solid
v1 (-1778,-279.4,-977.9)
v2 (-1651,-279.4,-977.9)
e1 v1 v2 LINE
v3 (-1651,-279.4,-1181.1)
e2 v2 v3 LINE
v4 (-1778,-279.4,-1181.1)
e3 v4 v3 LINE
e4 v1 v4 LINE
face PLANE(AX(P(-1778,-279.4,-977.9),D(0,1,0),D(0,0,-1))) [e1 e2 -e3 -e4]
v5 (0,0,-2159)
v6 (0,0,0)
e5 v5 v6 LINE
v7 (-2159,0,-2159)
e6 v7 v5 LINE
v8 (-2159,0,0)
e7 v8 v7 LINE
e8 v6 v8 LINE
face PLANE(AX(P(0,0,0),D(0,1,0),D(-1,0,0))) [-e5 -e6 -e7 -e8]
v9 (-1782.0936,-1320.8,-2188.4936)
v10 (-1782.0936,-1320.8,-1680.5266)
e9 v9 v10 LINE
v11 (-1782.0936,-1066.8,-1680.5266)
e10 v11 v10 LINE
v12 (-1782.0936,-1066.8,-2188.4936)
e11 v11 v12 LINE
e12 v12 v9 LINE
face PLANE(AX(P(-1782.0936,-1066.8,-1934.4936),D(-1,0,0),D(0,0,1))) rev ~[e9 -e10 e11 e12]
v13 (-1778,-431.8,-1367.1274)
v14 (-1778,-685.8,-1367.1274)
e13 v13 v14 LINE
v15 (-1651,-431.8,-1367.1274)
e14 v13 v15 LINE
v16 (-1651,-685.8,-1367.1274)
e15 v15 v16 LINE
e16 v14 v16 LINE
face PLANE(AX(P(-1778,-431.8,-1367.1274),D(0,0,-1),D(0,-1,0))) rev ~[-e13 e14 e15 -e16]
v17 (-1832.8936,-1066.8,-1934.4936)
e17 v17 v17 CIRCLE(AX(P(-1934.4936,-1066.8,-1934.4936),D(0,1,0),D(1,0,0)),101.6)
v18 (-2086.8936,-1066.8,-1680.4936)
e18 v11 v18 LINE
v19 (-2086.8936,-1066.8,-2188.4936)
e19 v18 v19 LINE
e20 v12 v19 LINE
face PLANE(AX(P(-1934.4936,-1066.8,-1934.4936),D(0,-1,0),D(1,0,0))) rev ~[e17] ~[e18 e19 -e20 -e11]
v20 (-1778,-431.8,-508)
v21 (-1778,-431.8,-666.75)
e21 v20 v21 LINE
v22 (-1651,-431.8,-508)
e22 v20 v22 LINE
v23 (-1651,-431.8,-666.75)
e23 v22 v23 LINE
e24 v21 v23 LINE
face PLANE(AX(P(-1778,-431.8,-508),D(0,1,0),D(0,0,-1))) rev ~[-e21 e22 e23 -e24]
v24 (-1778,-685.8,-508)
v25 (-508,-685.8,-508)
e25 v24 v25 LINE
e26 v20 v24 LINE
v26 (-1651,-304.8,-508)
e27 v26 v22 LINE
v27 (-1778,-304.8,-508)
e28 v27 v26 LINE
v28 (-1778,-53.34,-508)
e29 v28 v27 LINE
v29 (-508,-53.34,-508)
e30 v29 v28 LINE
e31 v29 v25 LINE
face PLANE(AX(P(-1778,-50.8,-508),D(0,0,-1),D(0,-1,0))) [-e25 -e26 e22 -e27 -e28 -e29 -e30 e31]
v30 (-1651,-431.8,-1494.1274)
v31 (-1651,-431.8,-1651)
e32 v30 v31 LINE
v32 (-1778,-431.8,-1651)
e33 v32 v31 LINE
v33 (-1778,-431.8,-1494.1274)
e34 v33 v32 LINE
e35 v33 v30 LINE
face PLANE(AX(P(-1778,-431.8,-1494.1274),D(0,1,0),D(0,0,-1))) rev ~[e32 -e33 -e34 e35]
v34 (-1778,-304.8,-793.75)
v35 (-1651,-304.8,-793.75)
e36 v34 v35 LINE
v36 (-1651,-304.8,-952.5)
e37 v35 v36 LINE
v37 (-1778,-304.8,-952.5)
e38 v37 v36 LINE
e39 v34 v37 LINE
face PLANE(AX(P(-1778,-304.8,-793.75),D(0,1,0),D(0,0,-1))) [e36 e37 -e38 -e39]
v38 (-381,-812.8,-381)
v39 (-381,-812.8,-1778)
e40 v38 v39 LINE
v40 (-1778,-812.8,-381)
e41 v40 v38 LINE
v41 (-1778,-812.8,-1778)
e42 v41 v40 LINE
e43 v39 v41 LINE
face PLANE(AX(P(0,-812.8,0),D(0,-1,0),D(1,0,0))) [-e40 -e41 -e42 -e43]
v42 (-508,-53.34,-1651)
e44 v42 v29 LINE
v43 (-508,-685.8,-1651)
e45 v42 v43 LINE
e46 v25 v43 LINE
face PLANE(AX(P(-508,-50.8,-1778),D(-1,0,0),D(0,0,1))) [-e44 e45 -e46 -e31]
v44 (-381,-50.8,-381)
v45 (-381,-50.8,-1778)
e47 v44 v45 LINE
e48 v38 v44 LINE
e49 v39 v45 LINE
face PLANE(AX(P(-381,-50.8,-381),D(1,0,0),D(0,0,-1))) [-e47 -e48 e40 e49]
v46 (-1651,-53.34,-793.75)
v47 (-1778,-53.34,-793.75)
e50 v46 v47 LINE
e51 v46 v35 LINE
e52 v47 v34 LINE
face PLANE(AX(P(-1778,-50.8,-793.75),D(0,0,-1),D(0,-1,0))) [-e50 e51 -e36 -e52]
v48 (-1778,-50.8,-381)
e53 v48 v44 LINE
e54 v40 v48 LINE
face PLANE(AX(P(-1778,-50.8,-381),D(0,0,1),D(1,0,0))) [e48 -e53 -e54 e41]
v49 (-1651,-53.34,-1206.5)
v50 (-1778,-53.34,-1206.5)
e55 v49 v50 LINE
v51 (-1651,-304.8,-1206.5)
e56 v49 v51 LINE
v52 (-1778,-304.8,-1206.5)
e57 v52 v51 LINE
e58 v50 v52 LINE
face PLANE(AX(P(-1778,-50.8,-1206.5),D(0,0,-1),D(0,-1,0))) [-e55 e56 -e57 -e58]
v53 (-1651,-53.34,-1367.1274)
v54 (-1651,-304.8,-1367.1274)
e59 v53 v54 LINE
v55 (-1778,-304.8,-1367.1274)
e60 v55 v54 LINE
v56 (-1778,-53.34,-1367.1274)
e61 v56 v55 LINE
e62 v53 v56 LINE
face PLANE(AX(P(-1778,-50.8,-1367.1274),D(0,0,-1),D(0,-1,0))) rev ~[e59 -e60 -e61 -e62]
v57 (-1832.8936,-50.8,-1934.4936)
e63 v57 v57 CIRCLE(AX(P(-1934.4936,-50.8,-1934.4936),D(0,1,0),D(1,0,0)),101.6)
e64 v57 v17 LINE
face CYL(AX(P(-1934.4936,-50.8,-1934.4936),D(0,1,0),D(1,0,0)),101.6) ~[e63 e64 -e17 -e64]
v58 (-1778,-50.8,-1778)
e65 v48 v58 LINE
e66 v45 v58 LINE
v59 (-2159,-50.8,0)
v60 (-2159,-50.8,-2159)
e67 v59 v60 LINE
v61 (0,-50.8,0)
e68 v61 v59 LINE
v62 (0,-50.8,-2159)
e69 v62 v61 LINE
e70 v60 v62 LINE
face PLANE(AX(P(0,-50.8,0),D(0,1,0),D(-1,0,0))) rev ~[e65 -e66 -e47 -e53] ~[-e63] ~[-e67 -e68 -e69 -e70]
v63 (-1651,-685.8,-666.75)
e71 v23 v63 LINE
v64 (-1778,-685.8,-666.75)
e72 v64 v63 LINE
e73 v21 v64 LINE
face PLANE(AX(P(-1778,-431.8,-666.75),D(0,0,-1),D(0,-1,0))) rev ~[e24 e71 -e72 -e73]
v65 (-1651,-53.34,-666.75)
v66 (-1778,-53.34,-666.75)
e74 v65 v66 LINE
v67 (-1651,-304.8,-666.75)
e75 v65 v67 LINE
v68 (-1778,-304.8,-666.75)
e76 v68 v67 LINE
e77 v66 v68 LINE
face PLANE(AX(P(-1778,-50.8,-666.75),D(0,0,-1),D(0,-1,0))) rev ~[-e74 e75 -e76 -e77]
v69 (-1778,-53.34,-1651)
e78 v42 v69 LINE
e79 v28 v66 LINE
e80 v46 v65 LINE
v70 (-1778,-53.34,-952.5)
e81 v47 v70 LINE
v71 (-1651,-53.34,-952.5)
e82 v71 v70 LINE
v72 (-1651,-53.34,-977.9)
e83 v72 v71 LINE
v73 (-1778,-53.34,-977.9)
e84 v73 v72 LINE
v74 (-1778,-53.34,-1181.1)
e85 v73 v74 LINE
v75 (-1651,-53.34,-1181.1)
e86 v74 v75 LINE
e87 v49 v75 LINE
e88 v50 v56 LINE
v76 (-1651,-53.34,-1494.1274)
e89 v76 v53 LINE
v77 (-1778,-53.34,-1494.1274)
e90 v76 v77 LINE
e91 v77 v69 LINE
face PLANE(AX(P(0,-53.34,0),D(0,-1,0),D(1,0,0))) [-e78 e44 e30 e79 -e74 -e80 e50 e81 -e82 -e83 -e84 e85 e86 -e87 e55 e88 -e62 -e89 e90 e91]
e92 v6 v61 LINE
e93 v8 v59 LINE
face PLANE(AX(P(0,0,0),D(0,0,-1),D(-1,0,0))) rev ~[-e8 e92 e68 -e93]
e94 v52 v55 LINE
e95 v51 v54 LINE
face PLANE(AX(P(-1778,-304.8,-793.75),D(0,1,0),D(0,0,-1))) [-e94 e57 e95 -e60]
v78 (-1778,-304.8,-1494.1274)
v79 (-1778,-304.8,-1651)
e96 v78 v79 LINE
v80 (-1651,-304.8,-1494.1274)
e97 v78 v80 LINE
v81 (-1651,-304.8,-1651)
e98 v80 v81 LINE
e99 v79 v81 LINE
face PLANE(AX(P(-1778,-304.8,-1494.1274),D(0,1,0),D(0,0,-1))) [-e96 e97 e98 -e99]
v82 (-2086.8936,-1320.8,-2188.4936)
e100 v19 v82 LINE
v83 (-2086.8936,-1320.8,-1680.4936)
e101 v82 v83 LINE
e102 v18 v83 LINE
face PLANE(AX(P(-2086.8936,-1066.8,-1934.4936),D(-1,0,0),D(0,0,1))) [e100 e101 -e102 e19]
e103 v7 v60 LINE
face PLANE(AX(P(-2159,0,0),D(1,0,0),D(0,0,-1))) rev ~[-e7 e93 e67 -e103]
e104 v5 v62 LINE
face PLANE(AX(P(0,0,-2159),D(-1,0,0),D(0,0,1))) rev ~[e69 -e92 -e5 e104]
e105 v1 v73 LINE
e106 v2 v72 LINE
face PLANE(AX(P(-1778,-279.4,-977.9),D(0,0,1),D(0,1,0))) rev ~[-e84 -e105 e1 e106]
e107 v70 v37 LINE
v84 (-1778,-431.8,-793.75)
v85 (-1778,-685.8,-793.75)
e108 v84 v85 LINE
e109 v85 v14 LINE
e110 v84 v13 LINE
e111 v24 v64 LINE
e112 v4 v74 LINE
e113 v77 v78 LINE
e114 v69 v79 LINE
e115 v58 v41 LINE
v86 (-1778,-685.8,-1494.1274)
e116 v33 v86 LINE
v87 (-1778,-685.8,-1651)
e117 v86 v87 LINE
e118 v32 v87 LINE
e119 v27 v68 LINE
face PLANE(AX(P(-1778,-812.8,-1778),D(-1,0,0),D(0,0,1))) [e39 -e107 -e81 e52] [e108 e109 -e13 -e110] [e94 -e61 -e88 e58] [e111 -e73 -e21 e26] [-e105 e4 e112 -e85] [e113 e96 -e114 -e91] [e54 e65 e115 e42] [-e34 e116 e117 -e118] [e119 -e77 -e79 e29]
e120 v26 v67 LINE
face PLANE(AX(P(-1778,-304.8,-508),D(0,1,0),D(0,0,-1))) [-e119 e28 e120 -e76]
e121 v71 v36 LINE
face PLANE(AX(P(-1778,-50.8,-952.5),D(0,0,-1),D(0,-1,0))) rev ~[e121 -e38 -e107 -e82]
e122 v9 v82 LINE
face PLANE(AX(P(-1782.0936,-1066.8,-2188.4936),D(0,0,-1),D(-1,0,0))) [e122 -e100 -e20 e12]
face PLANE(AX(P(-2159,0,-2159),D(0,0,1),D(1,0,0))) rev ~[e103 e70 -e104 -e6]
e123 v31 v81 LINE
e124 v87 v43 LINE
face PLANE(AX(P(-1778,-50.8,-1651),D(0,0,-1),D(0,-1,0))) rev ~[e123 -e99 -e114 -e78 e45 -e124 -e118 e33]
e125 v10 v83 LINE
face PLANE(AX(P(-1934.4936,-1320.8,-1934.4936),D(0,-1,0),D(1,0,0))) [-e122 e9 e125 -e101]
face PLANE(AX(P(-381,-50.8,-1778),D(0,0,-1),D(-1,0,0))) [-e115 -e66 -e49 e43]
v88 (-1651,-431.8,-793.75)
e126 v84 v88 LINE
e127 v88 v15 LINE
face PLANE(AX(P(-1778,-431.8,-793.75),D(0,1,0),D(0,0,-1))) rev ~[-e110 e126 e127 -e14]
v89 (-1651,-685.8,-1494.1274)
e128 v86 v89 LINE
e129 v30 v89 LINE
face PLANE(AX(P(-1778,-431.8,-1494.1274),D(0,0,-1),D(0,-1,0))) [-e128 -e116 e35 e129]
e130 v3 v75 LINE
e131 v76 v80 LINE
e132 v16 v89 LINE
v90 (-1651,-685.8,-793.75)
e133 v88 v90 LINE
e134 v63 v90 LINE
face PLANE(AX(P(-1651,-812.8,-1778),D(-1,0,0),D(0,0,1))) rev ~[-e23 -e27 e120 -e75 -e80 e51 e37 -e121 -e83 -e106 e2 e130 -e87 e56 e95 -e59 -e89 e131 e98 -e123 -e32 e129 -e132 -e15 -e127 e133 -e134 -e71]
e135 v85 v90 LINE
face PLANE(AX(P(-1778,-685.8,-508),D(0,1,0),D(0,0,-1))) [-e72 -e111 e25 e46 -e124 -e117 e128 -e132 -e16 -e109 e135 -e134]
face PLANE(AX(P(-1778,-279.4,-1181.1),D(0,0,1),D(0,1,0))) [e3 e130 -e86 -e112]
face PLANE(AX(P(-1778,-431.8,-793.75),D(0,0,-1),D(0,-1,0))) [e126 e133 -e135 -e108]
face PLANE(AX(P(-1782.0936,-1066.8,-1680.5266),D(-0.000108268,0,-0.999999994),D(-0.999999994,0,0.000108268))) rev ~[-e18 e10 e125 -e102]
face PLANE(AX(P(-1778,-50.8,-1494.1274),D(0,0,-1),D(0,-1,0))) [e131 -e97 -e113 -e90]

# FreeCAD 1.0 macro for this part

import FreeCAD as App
import Part
import Sketcher
from FreeCAD import Vector
Q = App.Units.Quantity


def add_polygon(sketch, points):
    """Adds a closed chain of lines whose ends are joined by coincident constraints."""
    first, n = sketch.GeometryCount, len(points)
    for a, b in zip(points, points[1:] + points[:1]):
        sketch.addGeometry(Part.LineSegment(App.Vector(*a, 0), App.Vector(*b, 0)), False)
    for i in range(n):
        sketch.addConstraint(Sketcher.Constraint("Coincident", first + i, 2, first + (i + 1) % n, 1))

doc = App.newDocument("Part")
body = doc.addObject("PartDesign::Body", "Body")

# Sketch on XZ plane
sketch1 = body.newObject("Sketcher::SketchObject", "Sketch")
sketch1.AttachmentSupport = (doc.getObject("XZ_Plane"), [""])
sketch1.MapMode = "FlatFace"
add_polygon(sketch1, [(-2159, 0), (0, 0), (0, -2159), (-2159, -2159)])  # lines 0-3
sketch1.addConstraint([
    Sketcher.Constraint("Horizontal", 0),
    Sketcher.Constraint("Vertical", 1),
    Sketcher.Constraint("Horizontal", 2),
    Sketcher.Constraint("Vertical", 3),
    Sketcher.Constraint("Coincident", 0, 2, -1, 1),
    Sketcher.Constraint("Equal", 2, 1),
    Sketcher.Constraint("DistanceX", 0, 1, 0, 2, Q("85 in")),
])
pad1 = body.newObject("PartDesign::Pad", "Pad")
pad1.Profile = sketch1
pad1.Length = Q("2 in")

# Sketch on XZ plane
sketch2 = body.newObject("Sketcher::SketchObject", "Sketch001")
sketch2.AttachmentSupport = (doc.getObject("XZ_Plane"), [""])
sketch2.MapMode = "FlatFace"
sketch2.AttachmentOffset = App.Placement(Vector(0, 0, 2 * 25.4), App.Rotation())
add_polygon(sketch2, [(-381, -1778), (-381, -381), (-1778, -381), (-1778, -1778)])  # lines 0-3
sketch2.addConstraint([
    Sketcher.Constraint("Vertical", 0),
    Sketcher.Constraint("Horizontal", 1),
    Sketcher.Constraint("Vertical", 2),
    Sketcher.Constraint("Horizontal", 3),
    Sketcher.Constraint("Equal", 3, 0),
    Sketcher.Constraint("DistanceX", 1, 2, 1, 1, Q("55 in")),
    Sketcher.Constraint("DistanceX", 0, 2, -1, 1, Q("15 in")),
    Sketcher.Constraint("DistanceY", 0, 2, -1, 1, Q("15 in")),
])
pad2 = body.newObject("PartDesign::Pad", "Pad001")
pad2.Profile = sketch2
pad2.Length = Q("30 in")

# Sketch on XZ plane
sketch3 = body.newObject("Sketcher::SketchObject", "Sketch002")
sketch3.AttachmentSupport = (doc.getObject("XZ_Plane"), [""])
sketch3.MapMode = "FlatFace"
sketch3.AttachmentOffset = App.Placement(Vector(0, 0, 2 * 25.4), App.Rotation())
sketch3.addGeometry(Part.Circle(Vector(-1934.4936, -1934.4936, 0), Vector(0, 0, 1), 101.6), False)
sketch3.addConstraint([
    Sketcher.Constraint("Diameter", 0, Q("8 in")),
    Sketcher.Constraint("DistanceX", 0, 3, -1, 1, Q("1934.4936 mm")),
    Sketcher.Constraint("DistanceY", 0, 3, -1, 1, Q("1934.4936 mm")),
])
pad3 = body.newObject("PartDesign::Pad", "Pad002")
pad3.Profile = sketch3
pad3.Length = Q("40 in")

# Sketch on XZ plane
sketch4 = body.newObject("Sketcher::SketchObject", "Sketch003")
sketch4.AttachmentSupport = (doc.getObject("XZ_Plane"), [""])
sketch4.MapMode = "FlatFace"
sketch4.AttachmentOffset = App.Placement(Vector(0, 0, 42 * 25.4), App.Rotation())
add_polygon(sketch4, [(-2086.8936, -1680.4936), (-2086.8936, -2188.4936), (-1782.0936, -2188.4936), (-1782.0936, -1680.5266)])  # lines 0-3
sketch4.addConstraint([
    Sketcher.Constraint("Vertical", 0),
    Sketcher.Constraint("Horizontal", 1),
    Sketcher.Constraint("Vertical", 2),
    Sketcher.Constraint("DistanceX", 1, 1, 1, 2, Q("12 in")),
    Sketcher.Constraint("DistanceY", 0, 2, 0, 1, Q("20 in")),
    Sketcher.Constraint("DistanceY", 2, 1, 2, 2, Q("19.9987 in")),
    Sketcher.Constraint("DistanceX", 0, 2, -1, 1, Q("2086.8936 mm")),
    Sketcher.Constraint("DistanceY", 0, 2, -1, 1, Q("2188.4936 mm")),
])
pad4 = body.newObject("PartDesign::Pad", "Pad003")
pad4.Profile = sketch4
pad4.Length = Q("10 in")

# Sketch on YZ plane
sketch5 = body.newObject("Sketcher::SketchObject", "Sketch004")
sketch5.AttachmentSupport = (doc.getObject("YZ_Plane"), [""])
sketch5.MapMode = "FlatFace"
sketch5.AttachmentOffset = App.Placement(Vector(0, 0, -70 * 25.4), App.Rotation())
add_polygon(sketch5, [(-50.8, -508), (-50.8, -1651), (-685.8, -1651), (-685.8, -508)])  # lines 0-3
sketch5.addConstraint([
    Sketcher.Constraint("Vertical", 0),
    Sketcher.Constraint("Horizontal", 1),
    Sketcher.Constraint("Vertical", 2),
    Sketcher.Constraint("Horizontal", 3),
    Sketcher.Constraint("DistanceX", 1, 2, 1, 1, Q("25 in")),
    Sketcher.Constraint("DistanceY", 0, 2, 0, 1, Q("45 in")),
    Sketcher.Constraint("DistanceX", 0, 2, -1, 1, Q("2 in")),
    Sketcher.Constraint("DistanceY", 0, 2, -1, 1, Q("65 in")),
])
pocket1 = body.newObject("PartDesign::Pocket", "Pocket")
pocket1.Profile = sketch5
pocket1.Length = Q("50 in")
pocket1.Reversed = True

# Sketch on YZ plane
sketch6 = body.newObject("Sketcher::SketchObject", "Sketch005")
sketch6.AttachmentSupport = (doc.getObject("YZ_Plane"), [""])
sketch6.MapMode = "FlatFace"
sketch6.AttachmentOffset = App.Placement(Vector(0, 0, -70 * 25.4), App.Rotation())
add_polygon(sketch6, [(-50.8, -1206.5), (-304.8, -1206.5), (-304.8, -952.5), (-50.8, -952.5)])  # lines 0-3
sketch6.addConstraint([
    Sketcher.Constraint("Horizontal", 0),
    Sketcher.Constraint("Vertical", 1),
    Sketcher.Constraint("Horizontal", 2),
    Sketcher.Constraint("Vertical", 3),
    Sketcher.Constraint("Equal", 2, 1),
    Sketcher.Constraint("DistanceX", 0, 2, 0, 1, Q("10 in")),
    Sketcher.Constraint("DistanceX", 0, 2, -1, 1, Q("12 in")),
    Sketcher.Constraint("DistanceY", 0, 2, -1, 1, Q("47.5 in")),
])
pad5 = body.newObject("PartDesign::Pad", "Pad004")
pad5.Profile = sketch6
pad5.Length = Q("5 in")

# Sketch on YZ plane
sketch7 = body.newObject("Sketcher::SketchObject", "Sketch006")
sketch7.AttachmentSupport = (doc.getObject("YZ_Plane"), [""])
sketch7.MapMode = "FlatFace"
sketch7.AttachmentOffset = App.Placement(Vector(0, 0, -70 * 25.4), App.Rotation())
add_polygon(sketch7, [(-279.4, -1181.1), (-279.4, -977.9), (-50.8, -977.9), (-50.8, -1181.1)])  # lines 0-3
sketch7.addConstraint([
    Sketcher.Constraint("Vertical", 0),
    Sketcher.Constraint("Horizontal", 1),
    Sketcher.Constraint("Vertical", 2),
    Sketcher.Constraint("Horizontal", 3),
    Sketcher.Constraint("DistanceX", 1, 1, 1, 2, Q("9 in")),
    Sketcher.Constraint("DistanceY", 0, 1, 0, 2, Q("8 in")),
    Sketcher.Constraint("DistanceX", 0, 2, -1, 1, Q("11 in")),
    Sketcher.Constraint("DistanceY", 0, 2, -1, 1, Q("38.5 in")),
])
pocket2 = body.newObject("PartDesign::Pocket", "Pocket001")
pocket2.Profile = sketch7
pocket2.Length = Q("5 in")
pocket2.Reversed = True

# Sketch on YZ plane
sketch8 = body.newObject("Sketcher::SketchObject", "Sketch007")
sketch8.AttachmentSupport = (doc.getObject("YZ_Plane"), [""])
sketch8.MapMode = "FlatFace"
sketch8.AttachmentOffset = App.Placement(Vector(0, 0, -70 * 25.4), App.Rotation())
add_polygon(sketch8, [(-50.8, -666.75), (-50.8, -793.75), (-304.8, -793.75), (-304.8, -1367.1274), (-50.8, -1367.1274), (-50.8, -1494.1274), (-304.8, -1494.1274), (-304.8, -1651), (-431.8, -1651), (-431.8, -1494.1274), (-685.8, -1494.1274), (-685.8, -1367.1274), (-431.8, -1367.1274), (-431.8, -793.75), (-685.8, -793.75), (-685.8, -666.75), (-431.8, -666.75), (-431.8, -508), (-304.8, -508), (-304.8, -666.75)])  # lines 0-19
sketch8.addConstraint([
    Sketcher.Constraint("Vertical", 0),
    Sketcher.Constraint("Horizontal", 1),
    Sketcher.Constraint("Vertical", 2),
    Sketcher.Constraint("Horizontal", 3),
    Sketcher.Constraint("Vertical", 4),
    Sketcher.Constraint("Horizontal", 5),
    Sketcher.Constraint("Vertical", 6),
    Sketcher.Constraint("Horizontal", 7),
    Sketcher.Constraint("Vertical", 8),
    Sketcher.Constraint("Horizontal", 9),
    Sketcher.Constraint("Vertical", 10),
    Sketcher.Constraint("Horizontal", 11),
    Sketcher.Constraint("Vertical", 12),
    Sketcher.Constraint("Horizontal", 13),
    Sketcher.Constraint("Vertical", 14),
    Sketcher.Constraint("Horizontal", 15),
    Sketcher.Constraint("Vertical", 16),
    Sketcher.Constraint("Horizontal", 17),
    Sketcher.Constraint("Vertical", 18),
    Sketcher.Constraint("Horizontal", 19),
    Sketcher.Constraint("Horizontal", 5, 2, 8, 2),
    Sketcher.Constraint("Horizontal", 3, 2, 10, 2),
    Sketcher.Constraint("Horizontal", 1, 2, 12, 2),
    Sketcher.Constraint("Horizontal", 15, 2, 18, 2),
    Sketcher.Constraint("Vertical", 0, 2, 3, 2),
    Sketcher.Constraint("Vertical", 2, 2, 5, 2),
    Sketcher.Constraint("Vertical", 8, 2, 11, 2),
    Sketcher.Constraint("Vertical", 10, 2, 13, 2),
    Sketcher.Constraint("Vertical", 12, 2, 15, 2),
    Sketcher.Constraint("Vertical", 6, 2, 17, 2),
    Sketcher.Constraint("Equal", 5, 9),
    Sketcher.Constraint("Equal", 17, 0),
    Sketcher.Constraint("Equal", 0, 4),
    Sketcher.Constraint("DistanceX", 13, 2, 0, 2, Q("25 in")),
    Sketcher.Constraint("DistanceX", 1, 2, 1, 1, Q("10 in")),
    Sketcher.Constraint("DistanceX", 0, 2, -1, 1, Q("2 in")),
    Sketcher.Constraint("DistanceY", 6, 2, -1, 1, Q("65 in")),
    Sketcher.Constraint("DistanceY", 16, 2, -1, 1, Q("20 in")),
    Sketcher.Constraint("DistanceY", 16, 1, 16, 2, Q("6.25 in")),
    Sketcher.Constraint("DistanceY", 2, 2, 2, 1, Q("573.3774 mm")),
])
pad6 = body.newObject("PartDesign::Pad", "Pad005")
pad6.Profile = sketch8
pad6.Length = Q("5 in")

# Sketch on XZ plane
sketch9 = body.newObject("Sketcher::SketchObject", "Sketch008")
sketch9.AttachmentSupport = (doc.getObject("XZ_Plane"), [""])
sketch9.MapMode = "FlatFace"
sketch9.AttachmentOffset = App.Placement(Vector(0, 0, 2 * 25.4), App.Rotation())
add_polygon(sketch9, [(-1778, -381), (-1778, -1778), (-381, -1778), (-381, -381)])  # lines 0-3
sketch9.addConstraint([
    Sketcher.Constraint("Vertical", 0),
    Sketcher.Constraint("Horizontal", 1),
    Sketcher.Constraint("Vertical", 2),
    Sketcher.Constraint("Horizontal", 3),
    Sketcher.Constraint("Equal", 3, 0),
    Sketcher.Constraint("DistanceX", 1, 1, 1, 2, Q("55 in")),
    Sketcher.Constraint("DistanceX", 0, 2, -1, 1, Q("70 in")),
    Sketcher.Constraint("DistanceY", 0, 2, -1, 1, Q("70 in")),
])
pad7 = body.newObject("PartDesign::Pad", "Pad006")
pad7.Profile = sketch9
pad7.Length = Q("0.1 in")

doc.recompute()
